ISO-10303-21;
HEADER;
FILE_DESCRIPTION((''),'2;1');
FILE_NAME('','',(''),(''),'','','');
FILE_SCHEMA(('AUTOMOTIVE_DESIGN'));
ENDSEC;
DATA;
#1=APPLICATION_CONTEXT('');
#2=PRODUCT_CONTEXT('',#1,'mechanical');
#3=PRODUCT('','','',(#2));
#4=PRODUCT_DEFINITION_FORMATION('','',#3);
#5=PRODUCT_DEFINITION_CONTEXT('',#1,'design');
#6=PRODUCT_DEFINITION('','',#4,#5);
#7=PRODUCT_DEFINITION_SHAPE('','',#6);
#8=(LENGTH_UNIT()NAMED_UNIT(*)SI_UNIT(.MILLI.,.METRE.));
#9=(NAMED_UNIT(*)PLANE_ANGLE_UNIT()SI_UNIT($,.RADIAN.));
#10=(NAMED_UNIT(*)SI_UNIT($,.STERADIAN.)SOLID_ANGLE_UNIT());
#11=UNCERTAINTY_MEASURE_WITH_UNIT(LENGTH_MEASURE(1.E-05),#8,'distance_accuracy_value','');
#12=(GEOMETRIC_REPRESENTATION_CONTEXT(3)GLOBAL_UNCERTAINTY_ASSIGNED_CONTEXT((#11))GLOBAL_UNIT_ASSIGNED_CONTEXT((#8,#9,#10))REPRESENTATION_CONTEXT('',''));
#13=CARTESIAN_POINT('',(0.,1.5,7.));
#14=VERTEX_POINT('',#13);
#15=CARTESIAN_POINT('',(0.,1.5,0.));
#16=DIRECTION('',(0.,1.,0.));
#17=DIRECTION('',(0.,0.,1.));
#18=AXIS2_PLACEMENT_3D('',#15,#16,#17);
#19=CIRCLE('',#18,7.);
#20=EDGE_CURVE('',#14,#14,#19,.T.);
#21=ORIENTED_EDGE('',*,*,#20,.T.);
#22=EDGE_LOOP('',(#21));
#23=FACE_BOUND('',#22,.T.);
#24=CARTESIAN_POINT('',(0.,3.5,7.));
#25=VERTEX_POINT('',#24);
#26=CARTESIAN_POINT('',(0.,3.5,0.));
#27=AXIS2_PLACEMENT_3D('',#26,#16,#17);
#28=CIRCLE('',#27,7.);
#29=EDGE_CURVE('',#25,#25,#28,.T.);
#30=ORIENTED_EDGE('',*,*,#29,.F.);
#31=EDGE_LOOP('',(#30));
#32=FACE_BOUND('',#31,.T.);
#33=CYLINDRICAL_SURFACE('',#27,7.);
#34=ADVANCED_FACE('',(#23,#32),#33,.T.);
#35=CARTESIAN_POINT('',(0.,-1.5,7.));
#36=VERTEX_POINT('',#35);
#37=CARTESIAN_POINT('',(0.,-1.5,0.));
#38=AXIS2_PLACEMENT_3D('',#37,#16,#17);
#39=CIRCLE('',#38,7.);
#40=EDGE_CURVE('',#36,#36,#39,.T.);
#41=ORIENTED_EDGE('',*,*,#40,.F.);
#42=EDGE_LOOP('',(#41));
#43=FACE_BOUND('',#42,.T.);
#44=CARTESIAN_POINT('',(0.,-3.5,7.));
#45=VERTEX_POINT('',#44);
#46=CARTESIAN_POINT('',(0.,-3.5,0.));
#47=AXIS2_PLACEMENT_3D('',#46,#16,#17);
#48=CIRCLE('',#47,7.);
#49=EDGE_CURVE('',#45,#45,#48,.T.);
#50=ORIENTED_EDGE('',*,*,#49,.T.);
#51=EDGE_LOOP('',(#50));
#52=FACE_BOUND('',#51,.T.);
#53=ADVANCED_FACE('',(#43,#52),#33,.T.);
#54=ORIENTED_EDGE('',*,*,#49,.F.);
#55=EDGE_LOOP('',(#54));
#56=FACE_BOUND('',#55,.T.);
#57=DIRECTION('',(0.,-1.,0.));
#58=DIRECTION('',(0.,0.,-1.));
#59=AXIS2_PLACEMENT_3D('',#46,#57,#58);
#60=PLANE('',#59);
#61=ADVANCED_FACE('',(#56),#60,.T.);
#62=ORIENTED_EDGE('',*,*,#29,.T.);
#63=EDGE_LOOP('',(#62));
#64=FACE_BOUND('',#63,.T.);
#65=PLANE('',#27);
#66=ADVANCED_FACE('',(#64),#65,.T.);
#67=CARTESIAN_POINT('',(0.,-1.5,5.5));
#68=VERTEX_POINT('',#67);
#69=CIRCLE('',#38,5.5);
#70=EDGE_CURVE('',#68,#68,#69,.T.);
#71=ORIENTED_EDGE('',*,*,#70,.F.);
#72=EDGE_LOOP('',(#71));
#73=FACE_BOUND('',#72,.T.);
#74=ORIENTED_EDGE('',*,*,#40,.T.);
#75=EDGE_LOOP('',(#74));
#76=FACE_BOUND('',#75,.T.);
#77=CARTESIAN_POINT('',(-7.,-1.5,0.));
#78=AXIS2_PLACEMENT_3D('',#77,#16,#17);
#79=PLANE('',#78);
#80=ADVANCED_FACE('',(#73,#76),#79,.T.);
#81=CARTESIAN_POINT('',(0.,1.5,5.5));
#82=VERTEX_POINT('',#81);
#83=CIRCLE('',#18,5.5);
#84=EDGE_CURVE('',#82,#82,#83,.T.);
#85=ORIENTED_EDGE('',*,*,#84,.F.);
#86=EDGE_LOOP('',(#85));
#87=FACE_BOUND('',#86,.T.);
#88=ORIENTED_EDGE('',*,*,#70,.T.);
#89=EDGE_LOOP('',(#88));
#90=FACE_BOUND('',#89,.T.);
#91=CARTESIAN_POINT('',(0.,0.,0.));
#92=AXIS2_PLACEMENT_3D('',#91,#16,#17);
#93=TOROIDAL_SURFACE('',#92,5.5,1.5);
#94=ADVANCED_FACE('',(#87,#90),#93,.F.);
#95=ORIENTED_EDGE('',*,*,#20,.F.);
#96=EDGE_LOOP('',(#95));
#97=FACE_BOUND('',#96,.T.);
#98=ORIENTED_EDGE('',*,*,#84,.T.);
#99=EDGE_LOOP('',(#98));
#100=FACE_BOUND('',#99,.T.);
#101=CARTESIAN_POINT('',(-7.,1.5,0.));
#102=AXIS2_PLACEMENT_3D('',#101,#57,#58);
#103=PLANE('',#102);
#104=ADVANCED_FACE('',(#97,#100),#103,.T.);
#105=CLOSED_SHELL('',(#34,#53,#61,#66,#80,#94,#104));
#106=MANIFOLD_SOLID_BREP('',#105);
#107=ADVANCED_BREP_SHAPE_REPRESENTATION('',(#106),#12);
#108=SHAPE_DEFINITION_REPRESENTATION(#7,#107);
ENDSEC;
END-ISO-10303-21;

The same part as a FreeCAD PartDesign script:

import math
import FreeCAD as App
import Part
import Sketcher

V = App.Vector
Q = App.Units.Quantity

doc = App.newDocument("Part")
body = doc.addObject("PartDesign::Body", "Body")

sketch1 = body.newObject("Sketcher::SketchObject", "Sketch")
sketch1.AttachmentSupport = (doc.getObject("XY_Plane"), [""])
sketch1.MapMode = "FlatFace"
sketch1.addGeometry([
    Part.LineSegment(V(0, 3.5, 0), V(-7, 3.5, 0)),
    Part.LineSegment(V(-7, 3.5, 0), V(-7, 1.5, 0)),
    Part.LineSegment(V(-7, 1.5, 0), V(-5.5, 1.5, 0)),
    Part.ArcOfCircle(Part.Circle(V(-5.5, 0, 0), V(0, 0, 1), 1.5), math.radians(-90), math.radians(90)),
    Part.LineSegment(V(-5.5, -1.5, 0), V(-7, -1.5, 0)),
    Part.LineSegment(V(-7, -1.5, 0), V(-7, -3.5, 0)),
    Part.LineSegment(V(-7, -3.5, 0), V(0, -3.5, 0)),
    Part.LineSegment(V(0, -3.5, 0), V(0, 3.5, 0)),
], False)
sketch1.addConstraint([
    Sketcher.Constraint("Coincident", 0, 2, 1, 1),
    Sketcher.Constraint("Coincident", 1, 2, 2, 1),
    Sketcher.Constraint("Tangent", 2, 2, 3, 2),
    Sketcher.Constraint("Tangent", 3, 1, 4, 1),
    Sketcher.Constraint("Coincident", 4, 2, 5, 1),
    Sketcher.Constraint("Coincident", 5, 2, 6, 1),
    Sketcher.Constraint("Coincident", 6, 2, 7, 1),
    Sketcher.Constraint("Coincident", 7, 2, 0, 1),
    Sketcher.Constraint("Horizontal", 0),
    Sketcher.Constraint("Vertical", 1),
    Sketcher.Constraint("Horizontal", 2),
    Sketcher.Constraint("Horizontal", 4),
    Sketcher.Constraint("Vertical", 5),
    Sketcher.Constraint("Horizontal", 6),
    Sketcher.Constraint("Vertical", 7),
    Sketcher.Constraint("Symmetric", 6, 2, 7, 2, -1, 1),
    Sketcher.Constraint("Symmetric", 1, 2, 4, 2, -1),
    Sketcher.Constraint("Equal", 6, 7),
    Sketcher.Constraint("Radius", 3, Q("1.5 mm")),
    Sketcher.Constraint("DistanceX", 0, 2, 0, 1, Q("7 mm")),
    Sketcher.Constraint("DistanceX", 2, 1, 2, 2, Q("1.5 mm")),
])
revolution = body.newObject("PartDesign::Revolution", "Revolution")
revolution.Profile = sketch1
revolution.ReferenceAxis = (sketch1, ["V_Axis"])
revolution.Angle = 360

doc.recompute()
